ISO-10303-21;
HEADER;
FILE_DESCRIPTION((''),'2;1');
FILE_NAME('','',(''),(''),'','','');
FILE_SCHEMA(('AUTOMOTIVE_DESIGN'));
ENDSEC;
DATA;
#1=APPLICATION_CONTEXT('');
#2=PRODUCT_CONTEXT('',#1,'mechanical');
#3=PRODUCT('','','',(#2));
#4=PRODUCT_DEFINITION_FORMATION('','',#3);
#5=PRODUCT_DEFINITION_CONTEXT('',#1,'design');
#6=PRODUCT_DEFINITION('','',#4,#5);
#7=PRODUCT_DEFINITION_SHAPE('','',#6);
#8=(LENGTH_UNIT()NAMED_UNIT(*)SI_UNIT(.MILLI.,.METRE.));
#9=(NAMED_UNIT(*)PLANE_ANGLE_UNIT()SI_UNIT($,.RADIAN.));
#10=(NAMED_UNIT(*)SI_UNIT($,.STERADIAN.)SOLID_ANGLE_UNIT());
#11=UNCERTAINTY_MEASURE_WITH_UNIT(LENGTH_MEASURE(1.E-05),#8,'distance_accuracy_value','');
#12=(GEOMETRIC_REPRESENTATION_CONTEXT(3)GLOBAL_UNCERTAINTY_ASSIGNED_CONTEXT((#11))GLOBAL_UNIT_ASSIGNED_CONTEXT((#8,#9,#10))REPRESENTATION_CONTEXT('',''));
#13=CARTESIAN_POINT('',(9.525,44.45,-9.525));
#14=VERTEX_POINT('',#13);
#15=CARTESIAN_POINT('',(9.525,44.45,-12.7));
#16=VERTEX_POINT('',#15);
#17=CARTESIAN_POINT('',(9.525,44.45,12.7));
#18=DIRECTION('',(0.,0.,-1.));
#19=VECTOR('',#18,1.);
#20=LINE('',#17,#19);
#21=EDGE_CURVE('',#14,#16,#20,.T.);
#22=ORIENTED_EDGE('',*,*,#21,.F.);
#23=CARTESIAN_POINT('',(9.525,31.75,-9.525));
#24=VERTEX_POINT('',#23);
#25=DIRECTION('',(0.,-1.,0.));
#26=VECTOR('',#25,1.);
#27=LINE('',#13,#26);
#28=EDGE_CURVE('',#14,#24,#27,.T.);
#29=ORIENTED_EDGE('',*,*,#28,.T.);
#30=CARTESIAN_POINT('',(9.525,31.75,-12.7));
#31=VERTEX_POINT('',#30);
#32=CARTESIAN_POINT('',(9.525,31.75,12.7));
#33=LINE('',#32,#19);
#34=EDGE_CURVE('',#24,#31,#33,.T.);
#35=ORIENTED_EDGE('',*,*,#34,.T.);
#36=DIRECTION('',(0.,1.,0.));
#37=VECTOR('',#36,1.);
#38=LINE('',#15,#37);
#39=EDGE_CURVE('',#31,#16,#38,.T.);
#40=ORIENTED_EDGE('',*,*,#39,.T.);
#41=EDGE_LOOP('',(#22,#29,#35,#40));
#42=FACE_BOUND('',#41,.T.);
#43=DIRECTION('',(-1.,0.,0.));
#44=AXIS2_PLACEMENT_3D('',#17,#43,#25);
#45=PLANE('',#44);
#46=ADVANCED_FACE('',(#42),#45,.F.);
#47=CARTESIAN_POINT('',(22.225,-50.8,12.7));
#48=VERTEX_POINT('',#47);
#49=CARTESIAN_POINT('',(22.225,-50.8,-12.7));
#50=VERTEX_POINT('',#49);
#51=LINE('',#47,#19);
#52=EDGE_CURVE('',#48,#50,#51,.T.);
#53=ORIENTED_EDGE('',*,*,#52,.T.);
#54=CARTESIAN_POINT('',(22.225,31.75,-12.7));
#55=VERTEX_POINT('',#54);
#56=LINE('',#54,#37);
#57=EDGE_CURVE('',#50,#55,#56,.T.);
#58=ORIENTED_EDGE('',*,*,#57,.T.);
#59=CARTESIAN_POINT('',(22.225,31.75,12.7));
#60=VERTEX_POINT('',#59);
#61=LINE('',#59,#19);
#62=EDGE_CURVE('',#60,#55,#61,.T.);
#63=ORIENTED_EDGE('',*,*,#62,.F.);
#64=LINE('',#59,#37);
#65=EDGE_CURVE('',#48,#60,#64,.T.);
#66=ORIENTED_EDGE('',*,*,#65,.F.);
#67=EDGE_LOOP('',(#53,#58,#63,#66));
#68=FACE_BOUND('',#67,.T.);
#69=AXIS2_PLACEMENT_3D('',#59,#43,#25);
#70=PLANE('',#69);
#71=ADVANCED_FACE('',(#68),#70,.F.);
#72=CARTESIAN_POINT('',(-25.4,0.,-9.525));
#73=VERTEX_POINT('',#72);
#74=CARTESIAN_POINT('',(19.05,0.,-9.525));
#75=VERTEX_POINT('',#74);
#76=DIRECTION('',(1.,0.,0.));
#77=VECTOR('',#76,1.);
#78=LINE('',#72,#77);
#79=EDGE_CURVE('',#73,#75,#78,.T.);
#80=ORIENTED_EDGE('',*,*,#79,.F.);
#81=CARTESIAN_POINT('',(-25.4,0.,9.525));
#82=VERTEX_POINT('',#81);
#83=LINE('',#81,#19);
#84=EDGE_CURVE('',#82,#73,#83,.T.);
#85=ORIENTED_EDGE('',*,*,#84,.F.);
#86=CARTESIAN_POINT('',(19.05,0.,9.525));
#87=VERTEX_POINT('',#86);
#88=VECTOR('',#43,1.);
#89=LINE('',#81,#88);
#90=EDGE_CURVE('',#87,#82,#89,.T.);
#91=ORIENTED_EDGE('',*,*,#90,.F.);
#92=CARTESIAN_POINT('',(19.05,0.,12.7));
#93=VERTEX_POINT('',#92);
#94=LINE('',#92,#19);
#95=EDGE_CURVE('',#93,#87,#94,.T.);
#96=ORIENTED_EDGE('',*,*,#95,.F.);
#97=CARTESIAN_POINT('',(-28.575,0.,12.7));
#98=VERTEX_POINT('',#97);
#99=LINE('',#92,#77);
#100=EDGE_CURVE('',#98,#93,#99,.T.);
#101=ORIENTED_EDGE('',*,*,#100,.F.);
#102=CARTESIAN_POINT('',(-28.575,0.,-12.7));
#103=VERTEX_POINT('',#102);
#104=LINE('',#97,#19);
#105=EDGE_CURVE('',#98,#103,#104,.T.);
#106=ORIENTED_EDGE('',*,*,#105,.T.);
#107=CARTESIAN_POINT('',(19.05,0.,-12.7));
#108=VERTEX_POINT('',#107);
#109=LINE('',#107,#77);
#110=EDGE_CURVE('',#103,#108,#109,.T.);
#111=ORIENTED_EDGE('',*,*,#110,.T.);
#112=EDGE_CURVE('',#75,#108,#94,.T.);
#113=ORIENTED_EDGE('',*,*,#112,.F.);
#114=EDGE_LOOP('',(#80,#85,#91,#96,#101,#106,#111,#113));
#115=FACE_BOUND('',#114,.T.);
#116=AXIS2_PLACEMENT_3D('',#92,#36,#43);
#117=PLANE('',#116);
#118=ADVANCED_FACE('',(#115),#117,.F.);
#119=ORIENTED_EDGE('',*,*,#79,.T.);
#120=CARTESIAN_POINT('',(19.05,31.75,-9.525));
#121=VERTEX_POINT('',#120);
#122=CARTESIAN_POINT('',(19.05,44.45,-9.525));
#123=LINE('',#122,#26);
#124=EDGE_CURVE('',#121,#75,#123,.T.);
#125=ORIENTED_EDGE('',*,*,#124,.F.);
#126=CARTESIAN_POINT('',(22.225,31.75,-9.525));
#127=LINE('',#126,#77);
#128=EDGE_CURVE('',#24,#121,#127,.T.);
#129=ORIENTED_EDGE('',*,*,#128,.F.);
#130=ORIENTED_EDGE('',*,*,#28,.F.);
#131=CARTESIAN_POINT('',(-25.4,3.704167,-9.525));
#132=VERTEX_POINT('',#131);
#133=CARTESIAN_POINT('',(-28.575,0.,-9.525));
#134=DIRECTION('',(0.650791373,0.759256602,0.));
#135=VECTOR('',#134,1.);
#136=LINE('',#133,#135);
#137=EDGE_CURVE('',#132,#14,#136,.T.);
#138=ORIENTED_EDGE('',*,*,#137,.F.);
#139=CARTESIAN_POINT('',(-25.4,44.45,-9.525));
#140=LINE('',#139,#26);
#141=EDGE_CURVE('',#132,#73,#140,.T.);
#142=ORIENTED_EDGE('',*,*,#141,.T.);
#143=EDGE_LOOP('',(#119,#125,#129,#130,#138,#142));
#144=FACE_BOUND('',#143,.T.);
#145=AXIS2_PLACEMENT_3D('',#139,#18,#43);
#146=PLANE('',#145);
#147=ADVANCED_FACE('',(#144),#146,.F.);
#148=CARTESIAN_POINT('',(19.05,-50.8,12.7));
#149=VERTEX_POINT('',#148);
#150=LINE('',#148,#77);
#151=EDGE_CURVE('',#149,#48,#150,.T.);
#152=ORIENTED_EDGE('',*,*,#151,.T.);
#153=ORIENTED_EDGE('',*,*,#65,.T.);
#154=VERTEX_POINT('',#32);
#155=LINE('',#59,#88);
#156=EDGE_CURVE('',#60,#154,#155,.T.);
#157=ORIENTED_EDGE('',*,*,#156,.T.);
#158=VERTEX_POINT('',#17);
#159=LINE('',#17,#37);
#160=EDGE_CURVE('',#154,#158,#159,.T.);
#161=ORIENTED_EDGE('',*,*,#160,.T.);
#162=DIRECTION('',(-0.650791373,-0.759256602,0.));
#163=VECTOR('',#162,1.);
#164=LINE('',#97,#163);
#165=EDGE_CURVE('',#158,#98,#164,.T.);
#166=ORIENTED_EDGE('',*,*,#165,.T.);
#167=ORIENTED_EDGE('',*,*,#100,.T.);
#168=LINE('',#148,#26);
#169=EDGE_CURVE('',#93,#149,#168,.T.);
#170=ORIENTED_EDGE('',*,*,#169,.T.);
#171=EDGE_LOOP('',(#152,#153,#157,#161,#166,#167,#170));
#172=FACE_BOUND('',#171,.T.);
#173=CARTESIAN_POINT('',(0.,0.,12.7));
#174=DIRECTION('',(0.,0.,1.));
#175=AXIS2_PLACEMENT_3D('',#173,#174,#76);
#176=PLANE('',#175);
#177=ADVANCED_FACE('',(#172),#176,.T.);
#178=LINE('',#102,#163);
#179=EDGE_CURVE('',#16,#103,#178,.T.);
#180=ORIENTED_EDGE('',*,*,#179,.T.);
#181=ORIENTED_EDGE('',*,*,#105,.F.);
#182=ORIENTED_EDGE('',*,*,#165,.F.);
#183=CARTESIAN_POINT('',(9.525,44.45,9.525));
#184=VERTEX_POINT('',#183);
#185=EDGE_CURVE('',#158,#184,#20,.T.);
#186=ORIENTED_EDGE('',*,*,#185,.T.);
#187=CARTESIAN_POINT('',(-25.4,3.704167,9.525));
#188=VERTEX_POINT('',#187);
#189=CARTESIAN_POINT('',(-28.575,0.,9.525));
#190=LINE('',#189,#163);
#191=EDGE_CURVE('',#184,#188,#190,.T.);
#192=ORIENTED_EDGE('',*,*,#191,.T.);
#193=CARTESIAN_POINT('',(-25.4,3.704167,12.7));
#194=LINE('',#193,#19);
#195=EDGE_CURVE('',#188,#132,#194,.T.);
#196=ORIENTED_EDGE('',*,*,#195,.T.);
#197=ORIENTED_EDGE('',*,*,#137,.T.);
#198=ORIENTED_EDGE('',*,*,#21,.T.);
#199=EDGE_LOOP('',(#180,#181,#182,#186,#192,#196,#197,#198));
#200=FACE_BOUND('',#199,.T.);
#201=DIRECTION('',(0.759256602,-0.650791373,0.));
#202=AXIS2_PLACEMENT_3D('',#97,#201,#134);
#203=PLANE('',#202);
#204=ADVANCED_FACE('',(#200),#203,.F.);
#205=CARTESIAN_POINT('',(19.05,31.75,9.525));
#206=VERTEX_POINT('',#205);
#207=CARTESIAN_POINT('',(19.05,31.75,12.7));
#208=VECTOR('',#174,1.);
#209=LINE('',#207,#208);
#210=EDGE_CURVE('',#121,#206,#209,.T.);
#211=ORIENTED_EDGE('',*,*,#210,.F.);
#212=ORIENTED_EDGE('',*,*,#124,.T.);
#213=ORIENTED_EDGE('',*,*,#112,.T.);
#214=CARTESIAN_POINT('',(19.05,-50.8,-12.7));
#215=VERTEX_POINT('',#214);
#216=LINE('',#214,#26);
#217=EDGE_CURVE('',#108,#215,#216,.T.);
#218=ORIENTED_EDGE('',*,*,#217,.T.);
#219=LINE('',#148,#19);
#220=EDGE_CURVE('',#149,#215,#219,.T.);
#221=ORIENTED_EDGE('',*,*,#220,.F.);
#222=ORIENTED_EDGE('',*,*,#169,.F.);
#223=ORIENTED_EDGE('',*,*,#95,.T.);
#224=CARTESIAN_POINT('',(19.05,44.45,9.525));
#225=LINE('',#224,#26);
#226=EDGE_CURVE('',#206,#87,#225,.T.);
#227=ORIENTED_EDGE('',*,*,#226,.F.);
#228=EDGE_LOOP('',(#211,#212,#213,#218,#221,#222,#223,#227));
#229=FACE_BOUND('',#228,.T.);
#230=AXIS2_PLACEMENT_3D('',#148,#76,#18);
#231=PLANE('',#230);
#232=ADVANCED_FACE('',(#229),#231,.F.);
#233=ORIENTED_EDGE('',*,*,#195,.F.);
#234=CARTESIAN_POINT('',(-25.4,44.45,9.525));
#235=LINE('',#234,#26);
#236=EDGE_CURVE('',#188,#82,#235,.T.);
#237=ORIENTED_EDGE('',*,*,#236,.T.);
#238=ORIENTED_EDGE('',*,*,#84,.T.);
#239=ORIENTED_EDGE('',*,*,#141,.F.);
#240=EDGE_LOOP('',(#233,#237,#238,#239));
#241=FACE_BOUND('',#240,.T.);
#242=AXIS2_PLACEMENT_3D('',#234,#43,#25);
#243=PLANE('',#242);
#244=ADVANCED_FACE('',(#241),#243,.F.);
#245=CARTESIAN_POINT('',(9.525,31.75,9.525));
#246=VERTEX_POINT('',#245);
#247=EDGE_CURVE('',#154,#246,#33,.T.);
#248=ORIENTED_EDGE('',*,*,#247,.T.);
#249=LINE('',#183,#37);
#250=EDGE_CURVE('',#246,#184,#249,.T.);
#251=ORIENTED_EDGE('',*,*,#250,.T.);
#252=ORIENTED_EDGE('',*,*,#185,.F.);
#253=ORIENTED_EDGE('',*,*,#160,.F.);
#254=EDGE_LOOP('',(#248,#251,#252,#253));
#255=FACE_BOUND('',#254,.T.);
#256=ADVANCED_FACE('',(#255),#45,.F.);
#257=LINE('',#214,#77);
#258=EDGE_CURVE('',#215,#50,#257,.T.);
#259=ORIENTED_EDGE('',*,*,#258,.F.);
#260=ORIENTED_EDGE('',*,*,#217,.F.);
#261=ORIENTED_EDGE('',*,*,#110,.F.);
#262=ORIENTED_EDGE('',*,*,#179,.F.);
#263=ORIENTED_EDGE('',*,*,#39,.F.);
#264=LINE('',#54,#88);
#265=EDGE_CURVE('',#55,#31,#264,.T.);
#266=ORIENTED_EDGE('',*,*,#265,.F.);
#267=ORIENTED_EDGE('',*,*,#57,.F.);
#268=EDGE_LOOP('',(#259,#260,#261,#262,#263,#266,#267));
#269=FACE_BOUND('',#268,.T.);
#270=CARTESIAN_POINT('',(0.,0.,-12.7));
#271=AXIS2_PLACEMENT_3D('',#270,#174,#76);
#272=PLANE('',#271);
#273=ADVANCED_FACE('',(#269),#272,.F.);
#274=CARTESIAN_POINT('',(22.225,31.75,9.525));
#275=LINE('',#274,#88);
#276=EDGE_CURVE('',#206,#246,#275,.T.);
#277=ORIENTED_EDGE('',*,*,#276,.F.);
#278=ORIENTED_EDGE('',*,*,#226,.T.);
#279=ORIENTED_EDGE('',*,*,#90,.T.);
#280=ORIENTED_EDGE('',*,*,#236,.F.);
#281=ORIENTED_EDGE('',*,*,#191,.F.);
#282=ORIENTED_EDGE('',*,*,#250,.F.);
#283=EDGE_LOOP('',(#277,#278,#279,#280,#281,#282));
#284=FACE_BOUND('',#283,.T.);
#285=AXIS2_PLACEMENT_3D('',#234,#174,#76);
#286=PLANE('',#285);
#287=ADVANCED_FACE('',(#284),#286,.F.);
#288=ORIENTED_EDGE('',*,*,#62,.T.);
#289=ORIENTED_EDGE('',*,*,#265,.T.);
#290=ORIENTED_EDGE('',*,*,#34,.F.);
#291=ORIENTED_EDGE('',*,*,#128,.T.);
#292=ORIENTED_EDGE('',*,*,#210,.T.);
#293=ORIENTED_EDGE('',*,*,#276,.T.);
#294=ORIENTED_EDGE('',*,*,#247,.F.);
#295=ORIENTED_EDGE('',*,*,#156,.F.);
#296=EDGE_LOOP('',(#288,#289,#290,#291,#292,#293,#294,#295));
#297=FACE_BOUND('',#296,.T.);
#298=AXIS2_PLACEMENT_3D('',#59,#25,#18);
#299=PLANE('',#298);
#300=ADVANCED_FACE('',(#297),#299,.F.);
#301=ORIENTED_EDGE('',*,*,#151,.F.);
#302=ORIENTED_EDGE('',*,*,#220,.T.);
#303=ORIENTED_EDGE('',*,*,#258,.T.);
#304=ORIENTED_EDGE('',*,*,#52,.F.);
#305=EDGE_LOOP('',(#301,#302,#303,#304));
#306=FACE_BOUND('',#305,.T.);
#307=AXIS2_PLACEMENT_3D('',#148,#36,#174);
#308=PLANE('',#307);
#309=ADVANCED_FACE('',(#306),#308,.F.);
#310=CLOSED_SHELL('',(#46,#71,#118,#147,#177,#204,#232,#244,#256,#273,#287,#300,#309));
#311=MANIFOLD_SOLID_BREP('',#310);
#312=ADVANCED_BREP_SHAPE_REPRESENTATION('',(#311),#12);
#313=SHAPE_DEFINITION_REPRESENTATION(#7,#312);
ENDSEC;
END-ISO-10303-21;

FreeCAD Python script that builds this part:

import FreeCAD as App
import Part
import Sketcher

V = App.Vector
Q = App.Units.Quantity


def add_polygon(sketch, points):
    """Adds a closed chain of lines whose ends are joined by coincident constraints."""
    first, n = sketch.GeometryCount, len(points)
    for a, b in zip(points, points[1:] + points[:1]):
        sketch.addGeometry(Part.LineSegment(App.Vector(*a, 0), App.Vector(*b, 0)), False)
    for i in range(n):
        sketch.addConstraint(Sketcher.Constraint("Coincident", first + i, 2, first + (i + 1) % n, 1))

doc = App.newDocument("Part")
body = doc.addObject("PartDesign::Body", "Body")

sketch1 = body.newObject("Sketcher::SketchObject", "Sketch")
sketch1.AttachmentSupport = (doc.getObject("XY_Plane"), [""])
sketch1.MapMode = "FlatFace"
add_polygon(sketch1, [(19.05, 0), (19.05, -50.8), (22.225, -50.8), (22.225, 31.75), (9.525, 31.75), (9.525, 44.45), (-28.575, 0)])
sketch1.addConstraint([
    Sketcher.Constraint("Vertical", 0),
    Sketcher.Constraint("Horizontal", 1),
    Sketcher.Constraint("Vertical", 2),
    Sketcher.Constraint("Horizontal", 3),
    Sketcher.Constraint("Vertical", 4),
    Sketcher.Constraint("Horizontal", 6),
    Sketcher.Constraint("PointOnObject", 5, 2, -1),
    Sketcher.Constraint("Equal", 3, 4),
    Sketcher.Constraint("DistanceY", 0, 2, 0, 1, Q("2 in")),
    Sketcher.Constraint("DistanceX", 3, 2, 3, 1, Q("0.5 in")),
    Sketcher.Constraint("DistanceX", 5, 2, 2, 2, Q("2 in")),
    Sketcher.Constraint("DistanceY", 2, 1, 2, 2, Q("3.25 in")),
    Sketcher.Constraint("DistanceX", 1, 1, 1, 2, Q("0.125 in")),
    Sketcher.Constraint("DistanceX", -1, 1, 0, 2, Q("0.75 in")),
])
pad1 = body.newObject("PartDesign::Pad", "Pad")
pad1.Profile = sketch1
pad1.Length = Q("1 in")
pad1.Midplane = True

sketch2 = body.newObject("Sketcher::SketchObject", "Sketch001")
sketch2.AttachmentSupport = (doc.getObject("XZ_Plane"), [""])
sketch2.MapMode = "FlatFace"
add_polygon(sketch2, [(-25.4, 9.525), (-25.4, -9.525), (19.05, -9.525), (19.05, 9.525)])
sketch2.addConstraint([
    Sketcher.Constraint("Vertical", 0),
    Sketcher.Constraint("Horizontal", 1),
    Sketcher.Constraint("Vertical", 2),
    Sketcher.Constraint("Horizontal", 3),
    Sketcher.Constraint("DistanceX", 0, 2, -1, 1, Q("1 in")),
    Sketcher.Constraint("DistanceX", 1, 1, 1, 2, Q("1.75 in")),
    Sketcher.Constraint("DistanceY", 0, 2, 0, 1, Q("0.75 in")),
    Sketcher.Constraint("DistanceY", 0, 2, -1, 1, Q("0.375 in")),
])
pocket1 = body.newObject("PartDesign::Pocket", "Pocket")
pocket1.Profile = sketch2
pocket1.Type = "ThroughAll"

doc.recompute()
